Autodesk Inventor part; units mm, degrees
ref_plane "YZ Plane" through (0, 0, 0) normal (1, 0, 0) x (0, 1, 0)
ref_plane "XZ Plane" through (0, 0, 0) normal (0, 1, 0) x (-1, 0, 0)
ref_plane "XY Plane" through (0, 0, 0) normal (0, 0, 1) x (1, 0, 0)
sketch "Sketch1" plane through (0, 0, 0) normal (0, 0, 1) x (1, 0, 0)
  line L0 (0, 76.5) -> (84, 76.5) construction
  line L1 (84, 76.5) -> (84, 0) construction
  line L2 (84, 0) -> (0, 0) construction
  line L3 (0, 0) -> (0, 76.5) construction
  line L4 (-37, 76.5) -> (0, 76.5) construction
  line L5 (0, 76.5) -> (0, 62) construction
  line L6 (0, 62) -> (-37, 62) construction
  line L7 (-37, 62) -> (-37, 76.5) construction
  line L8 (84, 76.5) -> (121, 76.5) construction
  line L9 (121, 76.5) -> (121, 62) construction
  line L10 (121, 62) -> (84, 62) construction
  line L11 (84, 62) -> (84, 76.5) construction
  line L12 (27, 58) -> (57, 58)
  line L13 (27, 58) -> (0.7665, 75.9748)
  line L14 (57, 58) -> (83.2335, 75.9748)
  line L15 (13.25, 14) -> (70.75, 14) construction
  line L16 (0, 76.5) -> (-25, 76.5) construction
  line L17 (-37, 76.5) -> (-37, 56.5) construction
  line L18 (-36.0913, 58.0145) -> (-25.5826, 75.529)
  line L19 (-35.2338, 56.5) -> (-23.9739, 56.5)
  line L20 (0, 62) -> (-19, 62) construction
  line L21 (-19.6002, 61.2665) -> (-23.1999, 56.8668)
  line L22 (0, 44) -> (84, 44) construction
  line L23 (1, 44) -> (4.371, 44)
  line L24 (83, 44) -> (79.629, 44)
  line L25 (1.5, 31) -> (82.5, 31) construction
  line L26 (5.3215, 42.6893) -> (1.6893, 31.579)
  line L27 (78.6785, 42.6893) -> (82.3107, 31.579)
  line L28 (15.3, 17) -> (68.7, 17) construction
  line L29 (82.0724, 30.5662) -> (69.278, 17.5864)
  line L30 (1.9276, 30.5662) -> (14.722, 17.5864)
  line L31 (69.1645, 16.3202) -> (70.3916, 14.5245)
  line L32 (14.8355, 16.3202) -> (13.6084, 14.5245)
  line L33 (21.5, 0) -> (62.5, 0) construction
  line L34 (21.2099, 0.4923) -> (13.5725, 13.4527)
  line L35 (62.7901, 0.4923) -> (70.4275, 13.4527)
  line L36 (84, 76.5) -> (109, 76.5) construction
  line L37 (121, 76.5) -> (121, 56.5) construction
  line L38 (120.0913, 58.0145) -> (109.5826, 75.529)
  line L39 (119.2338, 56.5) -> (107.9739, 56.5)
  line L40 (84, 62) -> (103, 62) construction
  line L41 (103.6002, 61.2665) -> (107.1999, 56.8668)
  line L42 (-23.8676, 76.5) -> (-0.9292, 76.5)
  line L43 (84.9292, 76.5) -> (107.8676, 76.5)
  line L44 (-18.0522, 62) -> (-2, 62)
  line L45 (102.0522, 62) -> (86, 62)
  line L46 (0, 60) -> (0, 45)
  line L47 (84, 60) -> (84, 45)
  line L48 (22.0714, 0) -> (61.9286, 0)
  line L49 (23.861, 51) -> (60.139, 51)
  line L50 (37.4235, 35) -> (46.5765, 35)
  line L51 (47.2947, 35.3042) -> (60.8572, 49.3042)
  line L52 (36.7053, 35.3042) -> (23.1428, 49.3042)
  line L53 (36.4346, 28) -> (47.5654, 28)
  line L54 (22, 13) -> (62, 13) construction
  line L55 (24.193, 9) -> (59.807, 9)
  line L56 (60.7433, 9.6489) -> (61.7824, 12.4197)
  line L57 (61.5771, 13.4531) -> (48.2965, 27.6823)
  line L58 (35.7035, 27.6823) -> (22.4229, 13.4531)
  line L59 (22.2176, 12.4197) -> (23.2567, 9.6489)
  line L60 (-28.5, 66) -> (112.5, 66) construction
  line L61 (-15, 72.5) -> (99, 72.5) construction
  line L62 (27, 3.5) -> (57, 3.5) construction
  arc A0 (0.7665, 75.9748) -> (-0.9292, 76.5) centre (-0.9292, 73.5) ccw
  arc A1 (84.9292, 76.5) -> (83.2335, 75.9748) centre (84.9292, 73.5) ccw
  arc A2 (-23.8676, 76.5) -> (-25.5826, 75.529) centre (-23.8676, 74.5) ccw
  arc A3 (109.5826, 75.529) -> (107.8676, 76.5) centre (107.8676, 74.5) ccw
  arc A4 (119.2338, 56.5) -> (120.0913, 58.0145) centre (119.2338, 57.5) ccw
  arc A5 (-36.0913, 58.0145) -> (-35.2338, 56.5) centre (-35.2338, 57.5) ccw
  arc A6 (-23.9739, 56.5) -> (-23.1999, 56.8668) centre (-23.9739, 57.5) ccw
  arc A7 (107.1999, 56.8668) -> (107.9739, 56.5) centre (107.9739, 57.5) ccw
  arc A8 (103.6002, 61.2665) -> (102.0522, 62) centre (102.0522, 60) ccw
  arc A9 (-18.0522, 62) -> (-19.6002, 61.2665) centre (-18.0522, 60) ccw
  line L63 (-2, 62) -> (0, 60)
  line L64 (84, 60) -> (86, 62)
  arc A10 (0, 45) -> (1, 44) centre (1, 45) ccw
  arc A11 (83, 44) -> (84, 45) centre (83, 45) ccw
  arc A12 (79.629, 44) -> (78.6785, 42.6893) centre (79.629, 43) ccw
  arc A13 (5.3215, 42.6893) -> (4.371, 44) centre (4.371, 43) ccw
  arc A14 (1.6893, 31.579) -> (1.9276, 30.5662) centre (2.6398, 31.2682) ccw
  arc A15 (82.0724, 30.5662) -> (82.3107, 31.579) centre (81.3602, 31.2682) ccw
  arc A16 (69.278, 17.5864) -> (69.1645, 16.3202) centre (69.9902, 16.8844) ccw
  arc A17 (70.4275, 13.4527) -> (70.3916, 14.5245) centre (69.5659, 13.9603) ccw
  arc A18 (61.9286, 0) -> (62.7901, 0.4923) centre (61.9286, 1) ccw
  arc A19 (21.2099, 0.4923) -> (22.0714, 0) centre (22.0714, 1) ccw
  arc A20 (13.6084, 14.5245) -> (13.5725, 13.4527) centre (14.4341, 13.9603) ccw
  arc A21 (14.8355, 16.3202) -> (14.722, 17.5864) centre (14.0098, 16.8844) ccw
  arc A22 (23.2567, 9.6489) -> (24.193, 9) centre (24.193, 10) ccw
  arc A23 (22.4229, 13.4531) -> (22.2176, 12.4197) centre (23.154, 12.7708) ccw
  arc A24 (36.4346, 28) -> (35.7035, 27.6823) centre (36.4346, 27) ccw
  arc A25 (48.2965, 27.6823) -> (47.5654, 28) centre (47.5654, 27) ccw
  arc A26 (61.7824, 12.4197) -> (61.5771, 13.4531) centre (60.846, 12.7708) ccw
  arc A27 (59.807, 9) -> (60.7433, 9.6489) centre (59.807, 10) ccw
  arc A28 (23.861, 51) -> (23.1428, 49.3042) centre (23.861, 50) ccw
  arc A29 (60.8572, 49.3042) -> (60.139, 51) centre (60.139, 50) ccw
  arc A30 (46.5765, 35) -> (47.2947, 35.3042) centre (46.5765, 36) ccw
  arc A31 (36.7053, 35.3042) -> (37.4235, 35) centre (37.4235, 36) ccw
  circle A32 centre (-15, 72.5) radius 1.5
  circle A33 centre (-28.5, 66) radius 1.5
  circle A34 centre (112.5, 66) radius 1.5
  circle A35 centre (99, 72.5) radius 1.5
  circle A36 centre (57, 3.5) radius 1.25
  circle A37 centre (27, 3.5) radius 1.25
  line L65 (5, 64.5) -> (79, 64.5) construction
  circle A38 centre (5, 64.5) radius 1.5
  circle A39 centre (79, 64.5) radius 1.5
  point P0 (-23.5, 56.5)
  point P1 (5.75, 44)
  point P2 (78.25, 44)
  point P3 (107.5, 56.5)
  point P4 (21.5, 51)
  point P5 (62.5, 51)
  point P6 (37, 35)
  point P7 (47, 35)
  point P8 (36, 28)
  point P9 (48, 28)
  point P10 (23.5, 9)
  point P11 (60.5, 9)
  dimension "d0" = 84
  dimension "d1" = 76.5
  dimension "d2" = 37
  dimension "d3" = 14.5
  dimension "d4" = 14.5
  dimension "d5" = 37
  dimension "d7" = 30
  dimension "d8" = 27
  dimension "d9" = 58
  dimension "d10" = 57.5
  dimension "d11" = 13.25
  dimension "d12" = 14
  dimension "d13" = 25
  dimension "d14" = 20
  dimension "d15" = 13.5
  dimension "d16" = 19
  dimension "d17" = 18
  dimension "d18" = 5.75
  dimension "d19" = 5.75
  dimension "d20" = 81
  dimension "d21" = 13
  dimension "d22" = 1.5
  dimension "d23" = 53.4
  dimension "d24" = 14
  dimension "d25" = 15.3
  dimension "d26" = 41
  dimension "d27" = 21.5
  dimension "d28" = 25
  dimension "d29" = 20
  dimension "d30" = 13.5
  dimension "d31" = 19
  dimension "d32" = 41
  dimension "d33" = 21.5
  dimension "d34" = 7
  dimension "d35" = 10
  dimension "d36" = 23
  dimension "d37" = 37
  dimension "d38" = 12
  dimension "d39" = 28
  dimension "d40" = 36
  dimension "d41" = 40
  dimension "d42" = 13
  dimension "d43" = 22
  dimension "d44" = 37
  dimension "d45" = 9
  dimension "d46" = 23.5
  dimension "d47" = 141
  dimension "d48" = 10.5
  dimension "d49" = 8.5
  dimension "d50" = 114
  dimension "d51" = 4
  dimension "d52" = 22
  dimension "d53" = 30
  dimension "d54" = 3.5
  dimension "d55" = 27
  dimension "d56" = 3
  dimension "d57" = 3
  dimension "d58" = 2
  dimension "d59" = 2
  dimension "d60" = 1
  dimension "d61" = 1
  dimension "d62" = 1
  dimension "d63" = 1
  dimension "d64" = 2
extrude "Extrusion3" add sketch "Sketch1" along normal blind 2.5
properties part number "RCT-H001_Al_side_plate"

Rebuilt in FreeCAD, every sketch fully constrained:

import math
import FreeCAD as App
import Part
import Sketcher
from FreeCAD import Vector
Q = App.Units.Quantity

doc = App.newDocument("Part")
params = doc.addObject("Spreadsheet::Sheet", "Params")
for row, (alias, value) in enumerate([
    ("sketch1_diameter", "3 mm"),
    ("sketch1_radius", "3 mm"),
    ("sketch1_radius2", "2 mm"),
    ("sketch1_radius3", "1 mm"),
    ("sketch1_width", "30 mm"),
    ("pad1_length", "2.5 mm"),
], start=1):
    params.set(f"A{row}", alias)
    params.set(f"B{row}", "=" + value)
    params.setAlias(f"B{row}", alias)

body = doc.addObject("PartDesign::Body", "Body")

# Sketch on XY plane
sketch1 = doc.addObject("Sketcher::SketchObject", "Sketch")
body.addObject(sketch1)
sketch1.AttachmentSupport = (doc.XY_Plane, [""])
sketch1.MapMode = "FlatFace"
sketch1.addGeometry(Part.LineSegment(Vector(57, 58, 0), Vector(27, 58, 0)), False)
sketch1.addGeometry(Part.LineSegment(Vector(27, 58, 0), Vector(0.8, 76, 0)), False)
sketch1.addGeometry(Part.ArcOfCircle(Part.Circle(Vector(-0.9, 73.5, 0), Vector(0, 0, 1), 3), math.radians(56), math.radians(90)), False)
sketch1.addGeometry(Part.LineSegment(Vector(-0.9, 76.5, 0), Vector(-23.9, 76.5, 0)), False)
sketch1.addGeometry(Part.ArcOfCircle(Part.Circle(Vector(-23.9, 74.5, 0), Vector(0, 0, 1), 2), math.radians(90), math.radians(149)), False)
sketch1.addGeometry(Part.LineSegment(Vector(-25.6, 75.5, 0), Vector(-36.1, 58, 0)), False)
sketch1.addGeometry(Part.ArcOfCircle(Part.Circle(Vector(-35.2, 57.5, 0), Vector(0, 0, 1), 1), math.radians(149), math.radians(270)), False)
sketch1.addGeometry(Part.LineSegment(Vector(-35.2, 56.5, 0), Vector(-24, 56.5, 0)), False)
sketch1.addGeometry(Part.ArcOfCircle(Part.Circle(Vector(-24, 57.5, 0), Vector(0, 0, 1), 1), math.radians(-90), math.radians(-39)), False)
sketch1.addGeometry(Part.LineSegment(Vector(-23.2, 56.9, 0), Vector(-19.6, 61.3, 0)), False)
sketch1.addGeometry(Part.ArcOfCircle(Part.Circle(Vector(-18.1, 60, 0), Vector(0, 0, 1), 2), math.radians(90), math.radians(141)), False)
sketch1.addGeometry(Part.LineSegment(Vector(-18.1, 62, 0), Vector(-2, 62, 0)), False)
sketch1.addGeometry(Part.LineSegment(Vector(-2, 62, 0), Vector(0, 60, 0)), False)
sketch1.addGeometry(Part.LineSegment(Vector(0, 60, 0), Vector(0, 45, 0)), False)
sketch1.addGeometry(Part.ArcOfCircle(Part.Circle(Vector(1, 45, 0), Vector(0, 0, 1), 1), math.radians(180), math.radians(270)), False)
sketch1.addGeometry(Part.LineSegment(Vector(1, 44, 0), Vector(4.4, 44, 0)), False)
sketch1.addGeometry(Part.ArcOfCircle(Part.Circle(Vector(4.4, 43, 0), Vector(0, 0, 1), 1), math.radians(-18), math.radians(90)), False)
sketch1.addGeometry(Part.LineSegment(Vector(5.3, 42.7, 0), Vector(1.7, 31.6, 0)), False)
sketch1.addGeometry(Part.ArcOfCircle(Part.Circle(Vector(2.6, 31.3, 0), Vector(0, 0, 1), 1), math.radians(162), math.radians(225)), False)
sketch1.addGeometry(Part.LineSegment(Vector(1.9, 30.6, 0), Vector(14.7, 17.6, 0)), False)
sketch1.addGeometry(Part.ArcOfCircle(Part.Circle(Vector(14, 16.9, 0), Vector(0, 0, 1), 1), math.radians(-34), math.radians(45)), False)
sketch1.addGeometry(Part.LineSegment(Vector(14.8, 16.3, 0), Vector(13.6, 14.5, 0)), False)
sketch1.addGeometry(Part.ArcOfCircle(Part.Circle(Vector(14.4, 14, 0), Vector(0, 0, 1), 1), math.radians(146), math.radians(211)), False)
sketch1.addGeometry(Part.LineSegment(Vector(13.6, 13.5, 0), Vector(21.2, 0.5, 0)), False)
sketch1.addGeometry(Part.ArcOfCircle(Part.Circle(Vector(22.1, 1, 0), Vector(0, 0, 1), 1), math.radians(-149), math.radians(-90)), False)
sketch1.addGeometry(Part.LineSegment(Vector(22.1, 0, 0), Vector(61.9, 0, 0)), False)
sketch1.addGeometry(Part.ArcOfCircle(Part.Circle(Vector(61.9, 1, 0), Vector(0, 0, 1), 1), math.radians(-90), math.radians(-31)), False)
sketch1.addGeometry(Part.LineSegment(Vector(62.8, 0.5, 0), Vector(70.4, 13.5, 0)), False)
sketch1.addGeometry(Part.ArcOfCircle(Part.Circle(Vector(69.6, 14, 0), Vector(0, 0, 1), 1), math.radians(-31), math.radians(34)), False)
sketch1.addGeometry(Part.LineSegment(Vector(70.4, 14.5, 0), Vector(69.2, 16.3, 0)), False)
sketch1.addGeometry(Part.ArcOfCircle(Part.Circle(Vector(70, 16.9, 0), Vector(0, 0, 1), 1), math.radians(135), math.radians(214)), False)
sketch1.addGeometry(Part.LineSegment(Vector(69.3, 17.6, 0), Vector(82.1, 30.6, 0)), False)
sketch1.addGeometry(Part.ArcOfCircle(Part.Circle(Vector(81.4, 31.3, 0), Vector(0, 0, 1), 1), math.radians(-45), math.radians(18)), False)
sketch1.addGeometry(Part.LineSegment(Vector(82.3, 31.6, 0), Vector(78.7, 42.7, 0)), False)
sketch1.addGeometry(Part.ArcOfCircle(Part.Circle(Vector(79.6, 43, 0), Vector(0, 0, 1), 1), math.radians(90), math.radians(198)), False)
sketch1.addGeometry(Part.LineSegment(Vector(79.6, 44, 0), Vector(83, 44, 0)), False)
sketch1.addGeometry(Part.ArcOfCircle(Part.Circle(Vector(83, 45, 0), Vector(0, 0, 1), 1), math.radians(-90), math.radians(0)), False)
sketch1.addGeometry(Part.LineSegment(Vector(84, 45, 0), Vector(84, 60, 0)), False)
sketch1.addGeometry(Part.LineSegment(Vector(84, 60, 0), Vector(86, 62, 0)), False)
sketch1.addGeometry(Part.LineSegment(Vector(86, 62, 0), Vector(102.1, 62, 0)), False)
sketch1.addGeometry(Part.ArcOfCircle(Part.Circle(Vector(102.1, 60, 0), Vector(0, 0, 1), 2), math.radians(39), math.radians(90)), False)
sketch1.addGeometry(Part.LineSegment(Vector(103.6, 61.3, 0), Vector(107.2, 56.9, 0)), False)
sketch1.addGeometry(Part.ArcOfCircle(Part.Circle(Vector(108, 57.5, 0), Vector(0, 0, 1), 1), math.radians(-141), math.radians(-90)), False)
sketch1.addGeometry(Part.LineSegment(Vector(108, 56.5, 0), Vector(119.2, 56.5, 0)), False)
sketch1.addGeometry(Part.ArcOfCircle(Part.Circle(Vector(119.2, 57.5, 0), Vector(0, 0, 1), 1), math.radians(-90), math.radians(31)), False)
sketch1.addGeometry(Part.LineSegment(Vector(120.1, 58, 0), Vector(109.6, 75.5, 0)), False)
sketch1.addGeometry(Part.ArcOfCircle(Part.Circle(Vector(107.9, 74.5, 0), Vector(0, 0, 1), 2), math.radians(31), math.radians(90)), False)
sketch1.addGeometry(Part.LineSegment(Vector(107.9, 76.5, 0), Vector(84.9, 76.5, 0)), False)
sketch1.addGeometry(Part.ArcOfCircle(Part.Circle(Vector(84.9, 73.5, 0), Vector(0, 0, 1), 3), math.radians(90), math.radians(124)), False)
sketch1.addGeometry(Part.LineSegment(Vector(83.2, 76, 0), Vector(57, 58, 0)), False)
sketch1.addGeometry(Part.Circle(Vector(27, 3.5, 0), Vector(0, 0, 1), 1.2), False)
sketch1.addGeometry(Part.Circle(Vector(57, 3.5, 0), Vector(0, 0, 1), 1.2), False)
sketch1.addGeometry(Part.ArcOfCircle(Part.Circle(Vector(36.4, 27, 0), Vector(0, 0, 1), 1), math.radians(90), math.radians(137)), False)
sketch1.addGeometry(Part.LineSegment(Vector(36.4, 28, 0), Vector(47.6, 28, 0)), False)
sketch1.addGeometry(Part.ArcOfCircle(Part.Circle(Vector(47.6, 27, 0), Vector(0, 0, 1), 1), math.radians(43), math.radians(90)), False)
sketch1.addGeometry(Part.LineSegment(Vector(48.3, 27.7, 0), Vector(61.6, 13.5, 0)), False)
sketch1.addGeometry(Part.ArcOfCircle(Part.Circle(Vector(60.8, 12.8, 0), Vector(0, 0, 1), 1), math.radians(-21), math.radians(43)), False)
sketch1.addGeometry(Part.LineSegment(Vector(61.8, 12.4, 0), Vector(60.7, 9.6, 0)), False)
sketch1.addGeometry(Part.ArcOfCircle(Part.Circle(Vector(59.8, 10, 0), Vector(0, 0, 1), 1), math.radians(-90), math.radians(-21)), False)
sketch1.addGeometry(Part.LineSegment(Vector(59.8, 9, 0), Vector(24.2, 9, 0)), False)
sketch1.addGeometry(Part.ArcOfCircle(Part.Circle(Vector(24.2, 10, 0), Vector(0, 0, 1), 1), math.radians(-159), math.radians(-90)), False)
sketch1.addGeometry(Part.LineSegment(Vector(23.3, 9.6, 0), Vector(22.2, 12.4, 0)), False)
sketch1.addGeometry(Part.ArcOfCircle(Part.Circle(Vector(23.2, 12.8, 0), Vector(0, 0, 1), 1), math.radians(137), math.radians(201)), False)
sketch1.addGeometry(Part.LineSegment(Vector(22.4, 13.5, 0), Vector(35.7, 27.7, 0)), False)
sketch1.addGeometry(Part.ArcOfCircle(Part.Circle(Vector(23.9, 50, 0), Vector(0, 0, 1), 1), math.radians(90), math.radians(224)), False)
sketch1.addGeometry(Part.LineSegment(Vector(23.9, 51, 0), Vector(60.1, 51, 0)), False)
sketch1.addGeometry(Part.ArcOfCircle(Part.Circle(Vector(60.1, 50, 0), Vector(0, 0, 1), 1), math.radians(-44), math.radians(90)), False)
sketch1.addGeometry(Part.LineSegment(Vector(60.9, 49.3, 0), Vector(47.3, 35.3, 0)), False)
sketch1.addGeometry(Part.ArcOfCircle(Part.Circle(Vector(46.6, 36, 0), Vector(0, 0, 1), 1), math.radians(-90), math.radians(-44)), False)
sketch1.addGeometry(Part.LineSegment(Vector(46.6, 35, 0), Vector(37.4, 35, 0)), False)
sketch1.addGeometry(Part.ArcOfCircle(Part.Circle(Vector(37.4, 36, 0), Vector(0, 0, 1), 1), math.radians(-136), math.radians(-90)), False)
sketch1.addGeometry(Part.LineSegment(Vector(36.7, 35.3, 0), Vector(23.1, 49.3, 0)), False)
sketch1.addGeometry(Part.Circle(Vector(-28.5, 66, 0), Vector(0, 0, 1), 1.5), False)
sketch1.addGeometry(Part.Circle(Vector(-15, 72.5, 0), Vector(0, 0, 1), 1.5), False)
sketch1.addGeometry(Part.Circle(Vector(5, 64.5, 0), Vector(0, 0, 1), 1.5), False)
sketch1.addGeometry(Part.Circle(Vector(79, 64.5, 0), Vector(0, 0, 1), 1.5), False)
sketch1.addGeometry(Part.Circle(Vector(112.5, 66, 0), Vector(0, 0, 1), 1.5), False)
sketch1.addGeometry(Part.Circle(Vector(99, 72.5, 0), Vector(0, 0, 1), 1.5), False)
sketch1.addConstraint(Sketcher.Constraint("Coincident", 0, 2, 1, 1))
sketch1.addConstraint(Sketcher.Constraint("Tangent", 1, 2, 2, 1))
sketch1.addConstraint(Sketcher.Constraint("Tangent", 2, 2, 3, 1))
sketch1.addConstraint(Sketcher.Constraint("Tangent", 3, 2, 4, 1))
sketch1.addConstraint(Sketcher.Constraint("Tangent", 4, 2, 5, 1))
sketch1.addConstraint(Sketcher.Constraint("Tangent", 5, 2, 6, 1))
sketch1.addConstraint(Sketcher.Constraint("Tangent", 6, 2, 7, 1))
sketch1.addConstraint(Sketcher.Constraint("Tangent", 7, 2, 8, 1))
sketch1.addConstraint(Sketcher.Constraint("Tangent", 8, 2, 9, 1))
sketch1.addConstraint(Sketcher.Constraint("Tangent", 9, 2, 10, 2))
sketch1.addConstraint(Sketcher.Constraint("Tangent", 10, 1, 11, 1))
sketch1.addConstraint(Sketcher.Constraint("Coincident", 11, 2, 12, 1))
sketch1.addConstraint(Sketcher.Constraint("Coincident", 12, 2, 13, 1))
sketch1.addConstraint(Sketcher.Constraint("Tangent", 13, 2, 14, 1))
sketch1.addConstraint(Sketcher.Constraint("Tangent", 14, 2, 15, 1))
sketch1.addConstraint(Sketcher.Constraint("Tangent", 15, 2, 16, 2))
sketch1.addConstraint(Sketcher.Constraint("Tangent", 16, 1, 17, 1))
sketch1.addConstraint(Sketcher.Constraint("Tangent", 17, 2, 18, 1))
sketch1.addConstraint(Sketcher.Constraint("Tangent", 18, 2, 19, 1))
sketch1.addConstraint(Sketcher.Constraint("Tangent", 19, 2, 20, 2))
sketch1.addConstraint(Sketcher.Constraint("Tangent", 20, 1, 21, 1))
sketch1.addConstraint(Sketcher.Constraint("Tangent", 21, 2, 22, 1))
sketch1.addConstraint(Sketcher.Constraint("Tangent", 22, 2, 23, 1))
sketch1.addConstraint(Sketcher.Constraint("Tangent", 23, 2, 24, 1))
sketch1.addConstraint(Sketcher.Constraint("Tangent", 24, 2, 25, 1))
sketch1.addConstraint(Sketcher.Constraint("Tangent", 25, 2, 26, 1))
sketch1.addConstraint(Sketcher.Constraint("Tangent", 26, 2, 27, 1))
sketch1.addConstraint(Sketcher.Constraint("Tangent", 27, 2, 28, 1))
sketch1.addConstraint(Sketcher.Constraint("Tangent", 28, 2, 29, 1))
sketch1.addConstraint(Sketcher.Constraint("Tangent", 29, 2, 30, 2))
sketch1.addConstraint(Sketcher.Constraint("Tangent", 30, 1, 31, 1))
sketch1.addConstraint(Sketcher.Constraint("Tangent", 31, 2, 32, 1))
sketch1.addConstraint(Sketcher.Constraint("Tangent", 32, 2, 33, 1))
sketch1.addConstraint(Sketcher.Constraint("Tangent", 33, 2, 34, 2))
sketch1.addConstraint(Sketcher.Constraint("Tangent", 34, 1, 35, 1))
sketch1.addConstraint(Sketcher.Constraint("Tangent", 35, 2, 36, 1))
sketch1.addConstraint(Sketcher.Constraint("Tangent", 36, 2, 37, 1))
sketch1.addConstraint(Sketcher.Constraint("Coincident", 37, 2, 38, 1))
sketch1.addConstraint(Sketcher.Constraint("Coincident", 38, 2, 39, 1))
sketch1.addConstraint(Sketcher.Constraint("Tangent", 39, 2, 40, 2))
sketch1.addConstraint(Sketcher.Constraint("Tangent", 40, 1, 41, 1))
sketch1.addConstraint(Sketcher.Constraint("Tangent", 41, 2, 42, 1))
sketch1.addConstraint(Sketcher.Constraint("Tangent", 42, 2, 43, 1))
sketch1.addConstraint(Sketcher.Constraint("Tangent", 43, 2, 44, 1))
sketch1.addConstraint(Sketcher.Constraint("Tangent", 44, 2, 45, 1))
sketch1.addConstraint(Sketcher.Constraint("Tangent", 45, 2, 46, 1))
sketch1.addConstraint(Sketcher.Constraint("Tangent", 46, 2, 47, 1))
sketch1.addConstraint(Sketcher.Constraint("Tangent", 47, 2, 48, 1))
sketch1.addConstraint(Sketcher.Constraint("Tangent", 48, 2, 49, 1))
sketch1.addConstraint(Sketcher.Constraint("Coincident", 49, 2, 0, 1))
sketch1.addConstraint(Sketcher.Constraint("Tangent", 52, 1, 53, 1))
sketch1.addConstraint(Sketcher.Constraint("Tangent", 53, 2, 54, 2))
sketch1.addConstraint(Sketcher.Constraint("Tangent", 54, 1, 55, 1))
sketch1.addConstraint(Sketcher.Constraint("Tangent", 55, 2, 56, 2))
sketch1.addConstraint(Sketcher.Constraint("Tangent", 56, 1, 57, 1))
sketch1.addConstraint(Sketcher.Constraint("Tangent", 57, 2, 58, 2))
sketch1.addConstraint(Sketcher.Constraint("Tangent", 58, 1, 59, 1))
sketch1.addConstraint(Sketcher.Constraint("Tangent", 59, 2, 60, 2))
sketch1.addConstraint(Sketcher.Constraint("Tangent", 60, 1, 61, 1))
sketch1.addConstraint(Sketcher.Constraint("Tangent", 61, 2, 62, 2))
sketch1.addConstraint(Sketcher.Constraint("Tangent", 62, 1, 63, 1))
sketch1.addConstraint(Sketcher.Constraint("Tangent", 63, 2, 52, 2))
sketch1.addConstraint(Sketcher.Constraint("Tangent", 64, 1, 65, 1))
sketch1.addConstraint(Sketcher.Constraint("Tangent", 65, 2, 66, 2))
sketch1.addConstraint(Sketcher.Constraint("Tangent", 66, 1, 67, 1))
sketch1.addConstraint(Sketcher.Constraint("Tangent", 67, 2, 68, 2))
sketch1.addConstraint(Sketcher.Constraint("Tangent", 68, 1, 69, 1))
sketch1.addConstraint(Sketcher.Constraint("Tangent", 69, 2, 70, 2))
sketch1.addConstraint(Sketcher.Constraint("Tangent", 70, 1, 71, 1))
sketch1.addConstraint(Sketcher.Constraint("Tangent", 71, 2, 64, 2))
sketch1.addConstraint(Sketcher.Constraint("Horizontal", 0))
sketch1.addConstraint(Sketcher.Constraint("Horizontal", 3))
sketch1.addConstraint(Sketcher.Constraint("Horizontal", 7))
sketch1.addConstraint(Sketcher.Constraint("Horizontal", 11))
sketch1.addConstraint(Sketcher.Constraint("Vertical", 13))
sketch1.addConstraint(Sketcher.Constraint("Horizontal", 15))
sketch1.addConstraint(Sketcher.Constraint("Horizontal", 25))
sketch1.addConstraint(Sketcher.Constraint("Horizontal", 35))
sketch1.addConstraint(Sketcher.Constraint("Vertical", 37))
sketch1.addConstraint(Sketcher.Constraint("Horizontal", 39))
sketch1.addConstraint(Sketcher.Constraint("Horizontal", 43))
sketch1.addConstraint(Sketcher.Constraint("Horizontal", 47))
sketch1.addConstraint(Sketcher.Constraint("Horizontal", 53))
sketch1.addConstraint(Sketcher.Constraint("Horizontal", 59))
sketch1.addConstraint(Sketcher.Constraint("Horizontal", 65))
sketch1.addConstraint(Sketcher.Constraint("Horizontal", 69))
sketch1.addConstraint(Sketcher.Constraint("Equal", 6, 8))
sketch1.addConstraint(Sketcher.Constraint("Equal", 4, 10))
sketch1.addConstraint(Sketcher.Constraint("Equal", 8, 14))
sketch1.addConstraint(Sketcher.Constraint("Equal", 14, 16))
sketch1.addConstraint(Sketcher.Constraint("Equal", 16, 18))
sketch1.addConstraint(Sketcher.Constraint("Equal", 18, 20))
sketch1.addConstraint(Sketcher.Constraint("Equal", 20, 22))
sketch1.addConstraint(Sketcher.Constraint("Equal", 22, 24))
sketch1.addConstraint(Sketcher.Constraint("Equal", 24, 26))
sketch1.addConstraint(Sketcher.Constraint("Equal", 26, 28))
sketch1.addConstraint(Sketcher.Constraint("Equal", 28, 30))
sketch1.addConstraint(Sketcher.Constraint("Equal", 30, 32))
sketch1.addConstraint(Sketcher.Constraint("Equal", 32, 34))
sketch1.addConstraint(Sketcher.Constraint("Equal", 34, 36))
sketch1.addConstraint(Sketcher.Constraint("Equal", 10, 40))
sketch1.addConstraint(Sketcher.Constraint("Equal", 36, 42))
sketch1.addConstraint(Sketcher.Constraint("Equal", 42, 44))
sketch1.addConstraint(Sketcher.Constraint("Equal", 40, 46))
sketch1.addConstraint(Sketcher.Constraint("Equal", 2, 48))
sketch1.addConstraint(Sketcher.Constraint("Equal", 50, 51))
sketch1.addConstraint(Sketcher.Constraint("Equal", 44, 52))
sketch1.addConstraint(Sketcher.Constraint("Equal", 52, 54))
sketch1.addConstraint(Sketcher.Constraint("Equal", 54, 56))
sketch1.addConstraint(Sketcher.Constraint("Equal", 56, 58))
sketch1.addConstraint(Sketcher.Constraint("Equal", 58, 60))
sketch1.addConstraint(Sketcher.Constraint("Equal", 60, 62))
sketch1.addConstraint(Sketcher.Constraint("Equal", 62, 64))
sketch1.addConstraint(Sketcher.Constraint("Equal", 64, 66))
sketch1.addConstraint(Sketcher.Constraint("Equal", 66, 68))
sketch1.addConstraint(Sketcher.Constraint("Equal", 68, 70))
sketch1.addConstraint(Sketcher.Constraint("Equal", 72, 73))
sketch1.addConstraint(Sketcher.Constraint("Equal", 73, 74))
sketch1.addConstraint(Sketcher.Constraint("Equal", 74, 75))
sketch1.addConstraint(Sketcher.Constraint("Equal", 75, 76))
sketch1.addConstraint(Sketcher.Constraint("Equal", 76, 77))
sketch1.addConstraint(Sketcher.Constraint("PointOnObject", 12, 2, -2))
sketch1.addConstraint(Sketcher.Constraint("PointOnObject", 24, 2, -1))
sketch1.addConstraint(Sketcher.Constraint("Perpendicular", 12, 38))
sketch1.addConstraint(Sketcher.Constraint("Horizontal", 22, 3, 28, 3))
sketch1.addConstraint(Sketcher.Constraint("Horizontal", 20, 3, 30, 3))
sketch1.addConstraint(Sketcher.Constraint("Horizontal", 18, 3, 32, 3))
sketch1.addConstraint(Sketcher.Constraint("Horizontal", 16, 3, 34, 3))
sketch1.addConstraint(Sketcher.Constraint("Horizontal", 10, 3, 40, 3))
sketch1.addConstraint(Sketcher.Constraint("Horizontal", 8, 3, 42, 3))
sketch1.addConstraint(Sketcher.Constraint("Horizontal", 4, 3, 46, 3))
sketch1.addConstraint(Sketcher.Constraint("Horizontal", 50, 3, 51, 3))
sketch1.addConstraint(Sketcher.Constraint("Horizontal", 56, 3, 62, 3))
sketch1.addConstraint(Sketcher.Constraint("Horizontal", 74, 3, 75, 3))
sketch1.addConstraint(Sketcher.Constraint("Horizontal", 72, 3, 76, 3))
sketch1.addConstraint(Sketcher.Constraint("Horizontal", 73, 3, 77, 3))
sketch1.addConstraint(Sketcher.Constraint("Horizontal", 40, 3, 12, 2))
sketch1.addConstraint(Sketcher.Constraint("Horizontal", 23, 2, 26, 2))
sketch1.addConstraint(Sketcher.Constraint("Horizontal", 21, 2, 28, 2))
sketch1.addConstraint(Sketcher.Constraint("Horizontal", 19, 2, 30, 1))
sketch1.addConstraint(Sketcher.Constraint("Horizontal", 17, 2, 32, 2))
sketch1.addConstraint(Sketcher.Constraint("Horizontal", 12, 2, 37, 2))
sketch1.addConstraint(Sketcher.Constraint("Horizontal", 9, 2, 40, 1))
sketch1.addConstraint(Sketcher.Constraint("Horizontal", 5, 2, 44, 2))
sketch1.addConstraint(Sketcher.Constraint("Horizontal", 1, 2, 48, 2))
sketch1.addConstraint(Sketcher.Constraint("Horizontal", 57, 2, 60, 1))
sketch1.addConstraint(Sketcher.Constraint("Horizontal", 55, 2, 62, 1))
sketch1.addConstraint(Sketcher.Constraint("Horizontal", 67, 2, 70, 1))
sketch1.addConstraint(Sketcher.Constraint("Vertical", 50, 3, 0, 2))
sketch1.addConstraint(Sketcher.Constraint("Vertical", 51, 3, 49, 2))
sketch1.addConstraint(Sketcher.Constraint("Equal", 15, 35))
sketch1.addConstraint(Sketcher.Constraint("Equal", 11, 39))
sketch1.addConstraint(Sketcher.Constraint("Equal", 7, 43))
sketch1.addConstraint(Sketcher.Constraint("Equal", 3, 47))
sketch1.addConstraint(Sketcher.Constraint("Equal", 12, 38))
sketch1.addConstraint(Sketcher.Constraint("Diameter", 72, 3.0))
sketch1.addConstraint(Sketcher.Constraint("Radius", 2, 3.0))
sketch1.addConstraint(Sketcher.Constraint("Radius", 4, 2.0))
sketch1.addConstraint(Sketcher.Constraint("Radius", 6, 1.0))
sketch1.addConstraint(Sketcher.Constraint("DistanceX", 0, 2, 0, 1, 30.0))
sketch1.addConstraint(Sketcher.Constraint("DistanceX", -1, 1, 50, 3, 27.0))
sketch1.addConstraint(Sketcher.Constraint("DistanceY", -1, 1, 52, 3, 27.0))
sketch1.addConstraint(Sketcher.Constraint("DistanceY", -1, 1, 58, 3, 10.0))
sketch1.addConstraint(Sketcher.Constraint("DistanceY", -1, 1, 68, 3, 36.0))
sketch1.addConstraint(Sketcher.Constraint("DistanceY", -1, 1, 0, 2, 58.0))
sketch1.addConstraint(Sketcher.Constraint("Diameter", 50, 2.5))
sketch1.addConstraint(Sketcher.Constraint("DistanceY", -1, 1, 6, 3, 57.5))
sketch1.addConstraint(Sketcher.Constraint("DistanceY", -1, 1, 50, 3, 3.5))
sketch1.addConstraint(Sketcher.Constraint("DistanceY", -1, 1, 2, 2, 76.5))
sketch1.addConstraint(Sketcher.Constraint("DistanceY", 13, 2, 13, 1, 15.0))
sketch1.addConstraint(Sketcher.Constraint("DistanceY", -1, 1, 10, 3, 60.0))
sketch1.addConstraint(Sketcher.Constraint("DistanceY", -1, 1, 64, 3, 50.0))
sketch1.addConstraint(Sketcher.Constraint("DistanceY", -1, 1, 72, 3, 66.0))
sketch1.addConstraint(Sketcher.Constraint("DistanceX", 73, 3, -1, 1, 15.0))
sketch1.addConstraint(Sketcher.Constraint("DistanceX", -1, 1, 74, 3, 5.0))
sketch1.addConstraint(Sketcher.Constraint("DistanceX", -1, 1, 75, 3, 79.0))
sketch1.addConstraint(Sketcher.Constraint("DistanceX", -1, 1, 77, 3, 99.0))
sketch1.addConstraint(Sketcher.Constraint("DistanceX", 7, 1, 7, 2, 11.26))
sketch1.addConstraint(Sketcher.Constraint("DistanceX", 72, 3, -1, 1, 28.5))
sketch1.addConstraint(Sketcher.Constraint("DistanceY", -1, 1, 73, 3, 72.5))
sketch1.addConstraint(Sketcher.Constraint("DistanceY", -1, 1, 74, 3, 64.5))
sketch1.addConstraint(Sketcher.Constraint("DistanceX", -1, 1, 76, 3, 112.5))
sketch1.addConstraint(Sketcher.Constraint("DistanceX", 8, 2, -1, 1, 23.2))
sketch1.addConstraint(Sketcher.Constraint("Angle", 9, Q("50.711 deg")))
sketch1.addConstraint(Sketcher.Constraint("Angle", 23, Q("-59.4897 deg")))
sketch1.addConstraint(Sketcher.Constraint("Angle", 67, Q("-134.0906 deg")))
sketch1.addConstraint(Sketcher.Constraint("DistanceX", 15, 1, 15, 2, 3.371))
sketch1.addConstraint(Sketcher.Constraint("DistanceX", 59, 2, 59, 1, 35.614))
sketch1.addConstraint(Sketcher.Constraint("DistanceX", 65, 1, 65, 2, 36.278))
sketch1.addConstraint(Sketcher.Constraint("DistanceX", -1, 1, 23, 2, 21.21))
sketch1.addConstraint(Sketcher.Constraint("Distance", 17, 11.689))
sketch1.addConstraint(Sketcher.Constraint("Distance", 21, 2.175))
sketch1.addConstraint(Sketcher.Constraint("Distance", 55, 19.464))
sketch1.addConstraint(Sketcher.Constraint("DistanceX", 3, 2, 3, 1, 22.9384))
sketch1.addConstraint(Sketcher.Constraint("DistanceX", 53, 1, 53, 2, 11.1308))
sketch1.addConstraint(Sketcher.Constraint("DistanceX", -1, 1, 22, 3, 14.434))
sketch1.addConstraint(Sketcher.Constraint("DistanceX", -1, 1, 56, 3, 60.846))
sketch1.addConstraint(Sketcher.Constraint("DistanceX", -1, 1, 58, 3, 59.807))
sketch1.addConstraint(Sketcher.Constraint("DistanceX", -1, 1, 64, 3, 23.861))
sketch1.addConstraint(Sketcher.Constraint("DistanceY", -1, 1, 4, 2, 75.529))
sketch1.addConstraint(Sketcher.Constraint("DistanceY", -1, 1, 17, 2, 31.579))
sketch1.addConstraint(Sketcher.Constraint("DistanceX", -1, 1, 19, 2, 14.722))
sketch1.setExpression("Constraints[155]", "Params.sketch1_diameter")
sketch1.setExpression("Constraints[156]", "Params.sketch1_radius")
sketch1.setExpression("Constraints[157]", "Params.sketch1_radius2")
sketch1.setExpression("Constraints[158]", "Params.sketch1_radius3")
sketch1.setExpression("Constraints[159]", "Params.sketch1_width")
pad1 = doc.addObject("PartDesign::Pad", "Pad")
body.addObject(pad1)
pad1.Profile = sketch1
pad1.setExpression("Length", "Params.pad1_length")

doc.recompute()
